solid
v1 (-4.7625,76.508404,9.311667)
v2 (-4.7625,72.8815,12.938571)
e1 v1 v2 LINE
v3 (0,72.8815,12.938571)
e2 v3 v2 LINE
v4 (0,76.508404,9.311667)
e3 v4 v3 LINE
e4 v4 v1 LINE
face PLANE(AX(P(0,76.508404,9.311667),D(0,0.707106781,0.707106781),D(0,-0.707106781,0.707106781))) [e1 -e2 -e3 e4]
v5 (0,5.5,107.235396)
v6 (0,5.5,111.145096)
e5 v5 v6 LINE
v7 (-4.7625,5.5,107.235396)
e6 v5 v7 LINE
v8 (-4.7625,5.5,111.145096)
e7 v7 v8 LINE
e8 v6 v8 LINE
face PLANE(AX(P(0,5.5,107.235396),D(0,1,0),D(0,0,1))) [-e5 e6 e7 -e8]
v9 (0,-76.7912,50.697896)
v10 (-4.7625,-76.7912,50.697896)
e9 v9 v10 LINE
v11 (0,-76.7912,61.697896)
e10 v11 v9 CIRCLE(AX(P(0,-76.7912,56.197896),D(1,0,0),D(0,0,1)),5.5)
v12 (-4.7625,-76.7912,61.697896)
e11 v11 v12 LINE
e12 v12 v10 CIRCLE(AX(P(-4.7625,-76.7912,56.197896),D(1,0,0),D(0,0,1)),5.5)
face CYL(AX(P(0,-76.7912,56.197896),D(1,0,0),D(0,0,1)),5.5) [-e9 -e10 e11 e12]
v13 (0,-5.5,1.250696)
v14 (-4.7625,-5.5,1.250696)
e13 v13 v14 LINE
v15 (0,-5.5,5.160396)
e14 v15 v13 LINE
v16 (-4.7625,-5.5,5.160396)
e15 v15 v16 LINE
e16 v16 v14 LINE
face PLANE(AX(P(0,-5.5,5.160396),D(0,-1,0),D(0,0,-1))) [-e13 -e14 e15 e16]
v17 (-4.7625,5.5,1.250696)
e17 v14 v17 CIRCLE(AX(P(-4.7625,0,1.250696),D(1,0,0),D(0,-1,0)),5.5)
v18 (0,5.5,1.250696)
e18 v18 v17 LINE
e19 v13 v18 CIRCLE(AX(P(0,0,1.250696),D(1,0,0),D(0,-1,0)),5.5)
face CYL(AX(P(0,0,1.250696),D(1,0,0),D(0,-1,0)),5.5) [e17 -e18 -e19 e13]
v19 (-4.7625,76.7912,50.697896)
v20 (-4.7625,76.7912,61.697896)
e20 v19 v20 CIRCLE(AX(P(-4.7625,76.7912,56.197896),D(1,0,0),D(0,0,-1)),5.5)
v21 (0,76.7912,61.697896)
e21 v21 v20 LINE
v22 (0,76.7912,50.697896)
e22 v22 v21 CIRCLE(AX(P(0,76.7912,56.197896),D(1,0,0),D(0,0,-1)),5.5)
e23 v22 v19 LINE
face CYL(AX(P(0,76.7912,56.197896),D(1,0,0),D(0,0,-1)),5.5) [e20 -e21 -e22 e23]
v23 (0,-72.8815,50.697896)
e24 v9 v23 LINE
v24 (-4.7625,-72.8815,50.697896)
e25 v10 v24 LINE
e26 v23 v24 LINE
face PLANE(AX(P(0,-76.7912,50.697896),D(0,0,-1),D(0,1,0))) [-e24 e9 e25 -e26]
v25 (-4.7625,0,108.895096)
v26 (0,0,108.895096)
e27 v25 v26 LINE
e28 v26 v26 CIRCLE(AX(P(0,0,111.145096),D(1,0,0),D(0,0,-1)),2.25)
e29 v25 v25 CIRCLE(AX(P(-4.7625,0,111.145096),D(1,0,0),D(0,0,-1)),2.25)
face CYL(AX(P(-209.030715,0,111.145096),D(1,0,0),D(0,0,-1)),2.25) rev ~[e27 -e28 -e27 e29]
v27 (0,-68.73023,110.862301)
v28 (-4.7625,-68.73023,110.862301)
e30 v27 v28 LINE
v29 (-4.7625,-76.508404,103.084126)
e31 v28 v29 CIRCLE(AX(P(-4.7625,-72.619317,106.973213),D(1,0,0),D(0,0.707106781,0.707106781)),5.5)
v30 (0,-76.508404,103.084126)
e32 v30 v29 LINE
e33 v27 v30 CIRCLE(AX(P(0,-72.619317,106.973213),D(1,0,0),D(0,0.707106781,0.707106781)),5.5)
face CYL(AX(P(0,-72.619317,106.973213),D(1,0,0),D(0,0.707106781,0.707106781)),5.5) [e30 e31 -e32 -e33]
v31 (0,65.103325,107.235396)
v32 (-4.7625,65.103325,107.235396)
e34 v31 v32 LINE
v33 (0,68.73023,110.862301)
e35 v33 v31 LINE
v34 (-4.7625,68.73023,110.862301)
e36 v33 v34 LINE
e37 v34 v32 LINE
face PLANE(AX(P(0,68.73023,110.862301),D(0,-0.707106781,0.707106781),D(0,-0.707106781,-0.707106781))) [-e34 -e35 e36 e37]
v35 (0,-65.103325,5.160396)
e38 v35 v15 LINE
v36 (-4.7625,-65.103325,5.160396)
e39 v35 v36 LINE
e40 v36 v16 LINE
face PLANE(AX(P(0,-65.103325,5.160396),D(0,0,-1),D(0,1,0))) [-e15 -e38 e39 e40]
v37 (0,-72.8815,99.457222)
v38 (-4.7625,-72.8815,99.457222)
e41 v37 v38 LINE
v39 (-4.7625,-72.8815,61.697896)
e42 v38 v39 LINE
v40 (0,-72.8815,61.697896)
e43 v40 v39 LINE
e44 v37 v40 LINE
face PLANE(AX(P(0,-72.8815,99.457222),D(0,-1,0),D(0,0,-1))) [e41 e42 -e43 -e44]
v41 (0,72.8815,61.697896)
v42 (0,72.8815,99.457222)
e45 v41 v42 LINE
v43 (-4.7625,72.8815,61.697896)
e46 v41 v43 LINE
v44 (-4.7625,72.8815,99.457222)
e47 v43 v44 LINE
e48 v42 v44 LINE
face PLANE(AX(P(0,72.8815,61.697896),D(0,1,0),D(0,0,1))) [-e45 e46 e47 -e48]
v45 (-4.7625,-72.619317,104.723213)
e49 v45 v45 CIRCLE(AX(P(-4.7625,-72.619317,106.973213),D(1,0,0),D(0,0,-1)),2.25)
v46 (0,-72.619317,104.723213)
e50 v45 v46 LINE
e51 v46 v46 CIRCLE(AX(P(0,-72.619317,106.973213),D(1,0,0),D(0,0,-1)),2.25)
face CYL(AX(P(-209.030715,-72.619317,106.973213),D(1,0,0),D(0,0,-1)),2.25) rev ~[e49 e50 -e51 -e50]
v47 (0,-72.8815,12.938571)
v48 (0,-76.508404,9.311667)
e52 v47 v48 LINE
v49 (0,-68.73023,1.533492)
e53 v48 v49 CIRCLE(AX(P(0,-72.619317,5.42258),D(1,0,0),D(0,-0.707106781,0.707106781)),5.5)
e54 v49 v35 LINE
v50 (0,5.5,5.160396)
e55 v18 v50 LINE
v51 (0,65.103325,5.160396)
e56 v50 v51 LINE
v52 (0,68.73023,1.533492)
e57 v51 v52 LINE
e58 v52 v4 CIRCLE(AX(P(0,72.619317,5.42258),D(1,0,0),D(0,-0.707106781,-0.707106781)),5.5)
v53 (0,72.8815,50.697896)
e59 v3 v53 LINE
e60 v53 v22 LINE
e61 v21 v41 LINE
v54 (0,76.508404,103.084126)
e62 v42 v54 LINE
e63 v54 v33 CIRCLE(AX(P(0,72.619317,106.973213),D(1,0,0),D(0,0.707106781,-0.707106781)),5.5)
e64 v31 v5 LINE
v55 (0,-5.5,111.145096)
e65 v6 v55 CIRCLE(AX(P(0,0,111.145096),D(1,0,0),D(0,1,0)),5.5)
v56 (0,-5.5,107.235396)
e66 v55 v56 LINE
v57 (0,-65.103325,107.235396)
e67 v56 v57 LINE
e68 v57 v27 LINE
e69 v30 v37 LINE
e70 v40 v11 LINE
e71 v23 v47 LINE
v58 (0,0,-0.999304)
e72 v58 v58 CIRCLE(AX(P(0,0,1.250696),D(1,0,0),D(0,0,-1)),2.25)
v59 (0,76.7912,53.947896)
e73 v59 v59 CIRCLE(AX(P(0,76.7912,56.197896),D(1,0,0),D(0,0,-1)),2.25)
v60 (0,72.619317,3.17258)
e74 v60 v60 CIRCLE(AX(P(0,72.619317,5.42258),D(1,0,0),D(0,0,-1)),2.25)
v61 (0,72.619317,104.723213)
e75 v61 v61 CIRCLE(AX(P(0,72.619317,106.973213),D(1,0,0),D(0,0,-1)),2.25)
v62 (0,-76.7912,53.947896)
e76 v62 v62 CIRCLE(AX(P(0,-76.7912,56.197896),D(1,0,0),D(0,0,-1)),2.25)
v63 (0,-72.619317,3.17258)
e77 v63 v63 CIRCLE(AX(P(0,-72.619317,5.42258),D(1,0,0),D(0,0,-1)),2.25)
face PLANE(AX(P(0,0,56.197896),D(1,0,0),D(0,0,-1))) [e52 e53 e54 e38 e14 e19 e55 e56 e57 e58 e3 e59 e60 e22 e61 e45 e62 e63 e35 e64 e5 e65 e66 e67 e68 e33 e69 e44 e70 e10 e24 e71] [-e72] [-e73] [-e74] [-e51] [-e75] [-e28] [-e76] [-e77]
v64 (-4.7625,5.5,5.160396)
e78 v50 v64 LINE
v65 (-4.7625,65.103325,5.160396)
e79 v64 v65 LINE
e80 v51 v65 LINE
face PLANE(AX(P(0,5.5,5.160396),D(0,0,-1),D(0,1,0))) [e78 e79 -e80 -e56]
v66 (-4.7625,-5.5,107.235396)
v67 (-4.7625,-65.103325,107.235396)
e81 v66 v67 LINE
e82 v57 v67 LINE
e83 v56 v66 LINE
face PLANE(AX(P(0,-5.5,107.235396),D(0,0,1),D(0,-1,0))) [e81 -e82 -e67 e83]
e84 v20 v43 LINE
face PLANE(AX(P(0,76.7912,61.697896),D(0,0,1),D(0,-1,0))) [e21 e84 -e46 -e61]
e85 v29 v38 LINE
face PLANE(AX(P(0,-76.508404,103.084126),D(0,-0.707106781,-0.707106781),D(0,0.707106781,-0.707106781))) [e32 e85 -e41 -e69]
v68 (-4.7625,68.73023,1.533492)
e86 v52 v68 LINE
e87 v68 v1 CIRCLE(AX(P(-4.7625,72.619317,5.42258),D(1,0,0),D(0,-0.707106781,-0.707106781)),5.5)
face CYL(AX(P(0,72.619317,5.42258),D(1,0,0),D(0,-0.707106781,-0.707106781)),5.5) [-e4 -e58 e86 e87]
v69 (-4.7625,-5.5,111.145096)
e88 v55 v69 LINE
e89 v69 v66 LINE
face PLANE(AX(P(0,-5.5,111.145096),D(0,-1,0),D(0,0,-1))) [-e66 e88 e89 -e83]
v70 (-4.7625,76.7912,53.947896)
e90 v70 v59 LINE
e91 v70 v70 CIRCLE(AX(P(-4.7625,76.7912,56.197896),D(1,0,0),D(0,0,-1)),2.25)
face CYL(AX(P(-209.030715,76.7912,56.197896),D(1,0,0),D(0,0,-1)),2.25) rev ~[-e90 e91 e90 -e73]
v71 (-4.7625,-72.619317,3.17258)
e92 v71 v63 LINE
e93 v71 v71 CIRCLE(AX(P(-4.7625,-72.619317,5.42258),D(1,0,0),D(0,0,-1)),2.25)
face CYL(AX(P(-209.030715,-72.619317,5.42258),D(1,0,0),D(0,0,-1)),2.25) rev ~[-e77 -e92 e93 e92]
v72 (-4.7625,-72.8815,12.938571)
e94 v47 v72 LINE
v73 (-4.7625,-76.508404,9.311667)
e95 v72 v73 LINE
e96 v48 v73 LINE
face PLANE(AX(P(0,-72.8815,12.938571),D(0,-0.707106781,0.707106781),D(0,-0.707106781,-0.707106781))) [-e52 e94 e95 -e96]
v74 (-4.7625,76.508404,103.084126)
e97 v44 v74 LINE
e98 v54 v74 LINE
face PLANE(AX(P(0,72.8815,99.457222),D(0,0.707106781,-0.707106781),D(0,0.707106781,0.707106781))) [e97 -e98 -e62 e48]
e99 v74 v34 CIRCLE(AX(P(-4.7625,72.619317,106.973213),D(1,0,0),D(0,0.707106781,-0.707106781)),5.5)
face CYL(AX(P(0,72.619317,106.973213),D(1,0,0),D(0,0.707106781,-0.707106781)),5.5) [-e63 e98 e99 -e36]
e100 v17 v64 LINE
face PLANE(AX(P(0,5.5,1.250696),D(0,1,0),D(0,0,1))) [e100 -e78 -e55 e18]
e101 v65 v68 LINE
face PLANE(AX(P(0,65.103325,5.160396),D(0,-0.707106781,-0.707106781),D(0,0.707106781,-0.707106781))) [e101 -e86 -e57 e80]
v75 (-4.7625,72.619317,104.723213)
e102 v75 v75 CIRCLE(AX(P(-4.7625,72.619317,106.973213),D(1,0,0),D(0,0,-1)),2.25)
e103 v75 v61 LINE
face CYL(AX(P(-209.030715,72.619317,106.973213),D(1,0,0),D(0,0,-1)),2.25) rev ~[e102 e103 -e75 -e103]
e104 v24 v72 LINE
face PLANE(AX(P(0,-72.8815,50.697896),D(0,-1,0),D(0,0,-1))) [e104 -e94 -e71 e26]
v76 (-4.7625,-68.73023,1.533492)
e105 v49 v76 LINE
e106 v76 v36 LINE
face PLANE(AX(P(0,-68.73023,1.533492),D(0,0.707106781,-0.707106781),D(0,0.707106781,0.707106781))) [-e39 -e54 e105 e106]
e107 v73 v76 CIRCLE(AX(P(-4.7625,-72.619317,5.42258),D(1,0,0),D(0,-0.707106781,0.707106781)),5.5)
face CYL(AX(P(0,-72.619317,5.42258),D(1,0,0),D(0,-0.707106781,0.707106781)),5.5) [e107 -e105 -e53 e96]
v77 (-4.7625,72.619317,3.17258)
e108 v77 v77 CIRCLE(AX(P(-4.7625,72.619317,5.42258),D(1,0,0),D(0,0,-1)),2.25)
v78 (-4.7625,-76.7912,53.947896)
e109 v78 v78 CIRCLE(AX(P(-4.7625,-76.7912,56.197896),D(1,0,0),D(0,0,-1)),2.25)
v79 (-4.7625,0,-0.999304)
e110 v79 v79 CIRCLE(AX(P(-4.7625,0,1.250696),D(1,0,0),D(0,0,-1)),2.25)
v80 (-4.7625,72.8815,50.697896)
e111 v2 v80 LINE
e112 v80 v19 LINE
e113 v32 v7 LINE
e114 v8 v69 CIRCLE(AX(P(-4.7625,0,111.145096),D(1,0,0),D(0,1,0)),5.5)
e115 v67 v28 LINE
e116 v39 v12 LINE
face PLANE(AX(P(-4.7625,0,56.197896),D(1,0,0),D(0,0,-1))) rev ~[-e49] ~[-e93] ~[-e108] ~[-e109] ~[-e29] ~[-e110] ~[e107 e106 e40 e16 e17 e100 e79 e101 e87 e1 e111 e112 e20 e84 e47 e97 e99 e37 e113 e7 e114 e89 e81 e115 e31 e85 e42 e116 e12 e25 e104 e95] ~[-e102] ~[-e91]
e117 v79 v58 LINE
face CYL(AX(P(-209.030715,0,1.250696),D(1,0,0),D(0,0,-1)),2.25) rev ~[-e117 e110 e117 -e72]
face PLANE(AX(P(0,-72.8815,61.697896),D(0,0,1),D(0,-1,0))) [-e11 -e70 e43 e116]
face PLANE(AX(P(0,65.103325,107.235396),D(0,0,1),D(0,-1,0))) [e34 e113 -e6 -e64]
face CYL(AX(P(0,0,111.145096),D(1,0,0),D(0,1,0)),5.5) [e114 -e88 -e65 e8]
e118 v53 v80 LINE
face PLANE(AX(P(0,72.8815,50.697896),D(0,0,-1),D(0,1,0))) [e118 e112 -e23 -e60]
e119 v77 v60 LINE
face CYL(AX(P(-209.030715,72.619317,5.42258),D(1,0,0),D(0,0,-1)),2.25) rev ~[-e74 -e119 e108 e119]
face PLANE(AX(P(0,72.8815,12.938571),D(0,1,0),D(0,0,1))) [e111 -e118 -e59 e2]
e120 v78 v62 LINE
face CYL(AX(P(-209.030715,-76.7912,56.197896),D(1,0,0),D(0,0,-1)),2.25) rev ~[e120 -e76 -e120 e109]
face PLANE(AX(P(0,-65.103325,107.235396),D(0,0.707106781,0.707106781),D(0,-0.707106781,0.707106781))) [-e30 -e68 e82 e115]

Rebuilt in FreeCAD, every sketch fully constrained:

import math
import FreeCAD as App
import Part
import Sketcher

doc = App.newDocument("Part")
body = doc.addObject("PartDesign::Body", "Body")

sketch1 = doc.addObject("Sketcher::SketchObject", "Sketch")
body.addObject(sketch1)
sketch1.AttachmentSupport = (doc.YZ_Plane, [""])
sketch1.MapMode = "FlatFace"
sketch1.addGeometry([
    Part.LineSegment(App.Vector(72.9, 12.9, 0), App.Vector(72.9, 50.7, 0)),
    Part.LineSegment(App.Vector(72.9, 50.7, 0), App.Vector(76.8, 50.7, 0)),
    Part.ArcOfCircle(Part.Circle(App.Vector(76.8, 56.2, 0), App.Vector(0, 0, 1), 5.5), math.radians(-90), math.radians(90)),
    Part.LineSegment(App.Vector(76.8, 61.7, 0), App.Vector(72.9, 61.7, 0)),
    Part.LineSegment(App.Vector(72.9, 61.7, 0), App.Vector(72.9, 99.5, 0)),
    Part.LineSegment(App.Vector(72.9, 99.5, 0), App.Vector(76.5, 103.1, 0)),
    Part.ArcOfCircle(Part.Circle(App.Vector(72.6, 107, 0), App.Vector(0, 0, 1), 5.5), math.radians(-45), math.radians(135)),
    Part.LineSegment(App.Vector(68.7, 110.9, 0), App.Vector(65.1, 107.2, 0)),
    Part.LineSegment(App.Vector(65.1, 107.2, 0), App.Vector(5.5, 107.2, 0)),
    Part.LineSegment(App.Vector(5.5, 107.2, 0), App.Vector(5.5, 111.1, 0)),
    Part.ArcOfCircle(Part.Circle(App.Vector(0, 111.1, 0), App.Vector(0, 0, 1), 5.5), math.radians(0), math.radians(180)),
    Part.LineSegment(App.Vector(-5.5, 111.1, 0), App.Vector(-5.5, 107.2, 0)),
    Part.LineSegment(App.Vector(-5.5, 107.2, 0), App.Vector(-65.1, 107.2, 0)),
    Part.LineSegment(App.Vector(-65.1, 107.2, 0), App.Vector(-68.7, 110.9, 0)),
    Part.ArcOfCircle(Part.Circle(App.Vector(-72.6, 107, 0), App.Vector(0, 0, 1), 5.5), math.radians(45), math.radians(225)),
    Part.LineSegment(App.Vector(-76.5, 103.1, 0), App.Vector(-72.9, 99.5, 0)),
    Part.LineSegment(App.Vector(-72.9, 99.5, 0), App.Vector(-72.9, 61.7, 0)),
    Part.LineSegment(App.Vector(-72.9, 61.7, 0), App.Vector(-76.8, 61.7, 0)),
    Part.ArcOfCircle(Part.Circle(App.Vector(-76.8, 56.2, 0), App.Vector(0, 0, 1), 5.5), math.radians(90), math.radians(270)),
    Part.LineSegment(App.Vector(-76.8, 50.7, 0), App.Vector(-72.9, 50.7, 0)),
    Part.LineSegment(App.Vector(-72.9, 50.7, 0), App.Vector(-72.9, 12.9, 0)),
    Part.LineSegment(App.Vector(-72.9, 12.9, 0), App.Vector(-76.5, 9.3, 0)),
    Part.ArcOfCircle(Part.Circle(App.Vector(-72.6, 5.4, 0), App.Vector(0, 0, 1), 5.5), math.radians(135), math.radians(315)),
    Part.LineSegment(App.Vector(-68.7, 1.5, 0), App.Vector(-65.1, 5.2, 0)),
    Part.LineSegment(App.Vector(-65.1, 5.2, 0), App.Vector(-5.5, 5.2, 0)),
    Part.LineSegment(App.Vector(-5.5, 5.2, 0), App.Vector(-5.5, 1.3, 0)),
    Part.ArcOfCircle(Part.Circle(App.Vector(0, 1.3, 0), App.Vector(0, 0, 1), 5.5), math.radians(180), math.radians(360)),
    Part.LineSegment(App.Vector(5.5, 1.3, 0), App.Vector(5.5, 5.2, 0)),
    Part.LineSegment(App.Vector(5.5, 5.2, 0), App.Vector(65.1, 5.2, 0)),
    Part.LineSegment(App.Vector(65.1, 5.2, 0), App.Vector(68.7, 1.5, 0)),
    Part.ArcOfCircle(Part.Circle(App.Vector(72.6, 5.4, 0), App.Vector(0, 0, 1), 5.5), math.radians(-135), math.radians(45)),
    Part.LineSegment(App.Vector(76.5, 9.3, 0), App.Vector(72.9, 12.9, 0)),
], False)
sketch1.addConstraint([
    Sketcher.Constraint("Coincident", 0, 2, 1, 1),
    Sketcher.Constraint("Tangent", 1, 2, 2, 1),
    Sketcher.Constraint("Tangent", 2, 2, 3, 1),
    Sketcher.Constraint("Coincident", 3, 2, 4, 1),
    Sketcher.Constraint("Coincident", 4, 2, 5, 1),
    Sketcher.Constraint("Tangent", 5, 2, 6, 1),
    Sketcher.Constraint("Tangent", 6, 2, 7, 1),
    Sketcher.Constraint("Coincident", 7, 2, 8, 1),
    Sketcher.Constraint("Coincident", 8, 2, 9, 1),
    Sketcher.Constraint("Tangent", 9, 2, 10, 1),
    Sketcher.Constraint("Tangent", 10, 2, 11, 1),
    Sketcher.Constraint("Coincident", 11, 2, 12, 1),
    Sketcher.Constraint("Coincident", 12, 2, 13, 1),
    Sketcher.Constraint("Tangent", 13, 2, 14, 1),
    Sketcher.Constraint("Tangent", 14, 2, 15, 1),
    Sketcher.Constraint("Coincident", 15, 2, 16, 1),
    Sketcher.Constraint("Coincident", 16, 2, 17, 1),
    Sketcher.Constraint("Tangent", 17, 2, 18, 1),
    Sketcher.Constraint("Tangent", 18, 2, 19, 1),
    Sketcher.Constraint("Coincident", 19, 2, 20, 1),
    Sketcher.Constraint("Coincident", 20, 2, 21, 1),
    Sketcher.Constraint("Tangent", 21, 2, 22, 1),
    Sketcher.Constraint("Tangent", 22, 2, 23, 1),
    Sketcher.Constraint("Coincident", 23, 2, 24, 1),
    Sketcher.Constraint("Coincident", 24, 2, 25, 1),
    Sketcher.Constraint("Tangent", 25, 2, 26, 1),
    Sketcher.Constraint("Tangent", 26, 2, 27, 1),
    Sketcher.Constraint("Coincident", 27, 2, 28, 1),
    Sketcher.Constraint("Coincident", 28, 2, 29, 1),
    Sketcher.Constraint("Tangent", 29, 2, 30, 1),
    Sketcher.Constraint("Tangent", 30, 2, 31, 1),
    Sketcher.Constraint("Coincident", 31, 2, 0, 1),
    Sketcher.Constraint("Vertical", 0),
    Sketcher.Constraint("Horizontal", 1),
    Sketcher.Constraint("Horizontal", 3),
    Sketcher.Constraint("Vertical", 4),
    Sketcher.Constraint("Horizontal", 8),
    Sketcher.Constraint("Vertical", 9),
    Sketcher.Constraint("Vertical", 11),
    Sketcher.Constraint("Horizontal", 12),
    Sketcher.Constraint("Vertical", 16),
    Sketcher.Constraint("Horizontal", 17),
    Sketcher.Constraint("Horizontal", 19),
    Sketcher.Constraint("Vertical", 20),
    Sketcher.Constraint("Horizontal", 24),
    Sketcher.Constraint("Vertical", 25),
    Sketcher.Constraint("Vertical", 27),
    Sketcher.Constraint("Horizontal", 28),
    Sketcher.Constraint("Equal", 2, 6),
    Sketcher.Constraint("Equal", 6, 10),
    Sketcher.Constraint("Equal", 10, 14),
    Sketcher.Constraint("Equal", 14, 18),
    Sketcher.Constraint("Equal", 18, 22),
    Sketcher.Constraint("Equal", 22, 26),
    Sketcher.Constraint("Equal", 26, 30),
    Sketcher.Constraint("Symmetric", 6, 3, 14, 3, -2),
    Sketcher.Constraint("Symmetric", 2, 3, 18, 3, -2),
    Sketcher.Constraint("Symmetric", 22, 3, 30, 3, -2),
    Sketcher.Constraint("Symmetric", 8, 2, 11, 2, -2),
    Sketcher.Constraint("Symmetric", 4, 2, 15, 2, -2),
    Sketcher.Constraint("Symmetric", 24, 2, 27, 2, -2),
    Sketcher.Constraint("Symmetric", 20, 2, 31, 2, -2),
    Sketcher.Constraint("Parallel", 5, 7),
    Sketcher.Constraint("Perpendicular", 7, 13),
    Sketcher.Constraint("Parallel", 13, 15),
    Sketcher.Constraint("Perpendicular", 15, 21),
    Sketcher.Constraint("Parallel", 21, 23),
    Sketcher.Constraint("Perpendicular", 23, 29),
    Sketcher.Constraint("Vertical", 14, 3, 22, 3),
    Sketcher.Constraint("Vertical", 0, 2, 3, 2),
    Sketcher.Constraint("Vertical", 12, 2, 23, 2),
    Sketcher.Constraint("Equal", 0, 4),
    Sketcher.Constraint("Equal", 19, 9),
    Sketcher.Constraint("Equal", 11, 25),
    Sketcher.Constraint("Equal", 5, 7),
    Sketcher.Constraint("Radius", 2, 5.5),
    Sketcher.Constraint("DistanceX", 1, 1, 1, 2, 3.9097),
    Sketcher.Constraint("DistanceX", -1, 1, 2, 3, 76.7912),
    Sketcher.Constraint("DistanceY", -1, 1, 6, 2, 110.862301),
    Sketcher.Constraint("DistanceY", 2, 3, 10, 3, 54.9472),
    Sketcher.Constraint("DistanceY", -1, 1, 22, 3, 5.42258),
])
pad1 = doc.addObject("PartDesign::Pad", "Pad")
body.addObject(pad1)
pad1.Profile = sketch1
pad1.Length = 4.7625
pad1.Reversed = True

sketch2 = doc.addObject("Sketcher::SketchObject", "Sketch001")
body.addObject(sketch2)
sketch2.AttachmentSupport = (doc.YZ_Plane, [""])
sketch2.MapMode = "FlatFace"
sketch2.AttachmentOffset = App.Placement(App.Vector(0, 0, -4.7625), App.Rotation())
sketch2.addGeometry([
    Part.Circle(App.Vector(-72.6, 5.4, 0), App.Vector(0, 0, 1), 2.2),
    Part.Circle(App.Vector(0, 1.3, 0), App.Vector(0, 0, 1), 2.2),
    Part.Circle(App.Vector(72.6, 5.4, 0), App.Vector(0, 0, 1), 2.2),
    Part.Circle(App.Vector(72.6, 107, 0), App.Vector(0, 0, 1), 2.2),
    Part.Circle(App.Vector(0, 111.1, 0), App.Vector(0, 0, 1), 2.2),
    Part.Circle(App.Vector(-72.6, 107, 0), App.Vector(0, 0, 1), 2.2),
    Part.Circle(App.Vector(-76.8, 56.2, 0), App.Vector(0, 0, 1), 2.2),
    Part.Circle(App.Vector(76.8, 56.2, 0), App.Vector(0, 0, 1), 2.2),
], False)
sketch2.addConstraint([
    Sketcher.Constraint("Equal", 0, 1),
    Sketcher.Constraint("Equal", 1, 2),
    Sketcher.Constraint("Equal", 2, 3),
    Sketcher.Constraint("Equal", 3, 4),
    Sketcher.Constraint("Equal", 4, 5),
    Sketcher.Constraint("Equal", 5, 6),
    Sketcher.Constraint("Equal", 6, 7),
    Sketcher.Constraint("Symmetric", 0, 3, 2, 3, -2),
    Sketcher.Constraint("Symmetric", 3, 3, 5, 3, -2),
    Sketcher.Constraint("Symmetric", 6, 3, 7, 3, -2),
    Sketcher.Constraint("PointOnObject", 1, 3, -2),
    Sketcher.Constraint("PointOnObject", 4, 3, -2),
    Sketcher.Constraint("Vertical", 2, 3, 3, 3),
    Sketcher.Constraint("Diameter", 0, 4.5),
    Sketcher.Constraint("DistanceX", 6, 3, -1, 1, 76.7912),
    Sketcher.Constraint("DistanceY", 1, 3, 4, 3, 109.8944),
    Sketcher.Constraint("DistanceY", 1, 3, 6, 3, 54.9472),
    Sketcher.Constraint("DistanceY", -1, 1, 0, 3, 5.42258),
    Sketcher.Constraint("DistanceX", 0, 3, -1, 1, 72.619317),
    Sketcher.Constraint("DistanceY", -1, 1, 1, 3, 1.250696),
    Sketcher.Constraint("DistanceY", -1, 1, 3, 3, 106.973213),
])
doc.recompute()
hole = doc.addObject("PartDesign::Hole", "Hole")
body.addObject(hole)
hole.Profile = sketch2
hole.ThreadType = "None"
hole.Diameter = 4.5
hole.DepthType = "ThroughAll"
hole.Reversed = True

doc.recompute()
